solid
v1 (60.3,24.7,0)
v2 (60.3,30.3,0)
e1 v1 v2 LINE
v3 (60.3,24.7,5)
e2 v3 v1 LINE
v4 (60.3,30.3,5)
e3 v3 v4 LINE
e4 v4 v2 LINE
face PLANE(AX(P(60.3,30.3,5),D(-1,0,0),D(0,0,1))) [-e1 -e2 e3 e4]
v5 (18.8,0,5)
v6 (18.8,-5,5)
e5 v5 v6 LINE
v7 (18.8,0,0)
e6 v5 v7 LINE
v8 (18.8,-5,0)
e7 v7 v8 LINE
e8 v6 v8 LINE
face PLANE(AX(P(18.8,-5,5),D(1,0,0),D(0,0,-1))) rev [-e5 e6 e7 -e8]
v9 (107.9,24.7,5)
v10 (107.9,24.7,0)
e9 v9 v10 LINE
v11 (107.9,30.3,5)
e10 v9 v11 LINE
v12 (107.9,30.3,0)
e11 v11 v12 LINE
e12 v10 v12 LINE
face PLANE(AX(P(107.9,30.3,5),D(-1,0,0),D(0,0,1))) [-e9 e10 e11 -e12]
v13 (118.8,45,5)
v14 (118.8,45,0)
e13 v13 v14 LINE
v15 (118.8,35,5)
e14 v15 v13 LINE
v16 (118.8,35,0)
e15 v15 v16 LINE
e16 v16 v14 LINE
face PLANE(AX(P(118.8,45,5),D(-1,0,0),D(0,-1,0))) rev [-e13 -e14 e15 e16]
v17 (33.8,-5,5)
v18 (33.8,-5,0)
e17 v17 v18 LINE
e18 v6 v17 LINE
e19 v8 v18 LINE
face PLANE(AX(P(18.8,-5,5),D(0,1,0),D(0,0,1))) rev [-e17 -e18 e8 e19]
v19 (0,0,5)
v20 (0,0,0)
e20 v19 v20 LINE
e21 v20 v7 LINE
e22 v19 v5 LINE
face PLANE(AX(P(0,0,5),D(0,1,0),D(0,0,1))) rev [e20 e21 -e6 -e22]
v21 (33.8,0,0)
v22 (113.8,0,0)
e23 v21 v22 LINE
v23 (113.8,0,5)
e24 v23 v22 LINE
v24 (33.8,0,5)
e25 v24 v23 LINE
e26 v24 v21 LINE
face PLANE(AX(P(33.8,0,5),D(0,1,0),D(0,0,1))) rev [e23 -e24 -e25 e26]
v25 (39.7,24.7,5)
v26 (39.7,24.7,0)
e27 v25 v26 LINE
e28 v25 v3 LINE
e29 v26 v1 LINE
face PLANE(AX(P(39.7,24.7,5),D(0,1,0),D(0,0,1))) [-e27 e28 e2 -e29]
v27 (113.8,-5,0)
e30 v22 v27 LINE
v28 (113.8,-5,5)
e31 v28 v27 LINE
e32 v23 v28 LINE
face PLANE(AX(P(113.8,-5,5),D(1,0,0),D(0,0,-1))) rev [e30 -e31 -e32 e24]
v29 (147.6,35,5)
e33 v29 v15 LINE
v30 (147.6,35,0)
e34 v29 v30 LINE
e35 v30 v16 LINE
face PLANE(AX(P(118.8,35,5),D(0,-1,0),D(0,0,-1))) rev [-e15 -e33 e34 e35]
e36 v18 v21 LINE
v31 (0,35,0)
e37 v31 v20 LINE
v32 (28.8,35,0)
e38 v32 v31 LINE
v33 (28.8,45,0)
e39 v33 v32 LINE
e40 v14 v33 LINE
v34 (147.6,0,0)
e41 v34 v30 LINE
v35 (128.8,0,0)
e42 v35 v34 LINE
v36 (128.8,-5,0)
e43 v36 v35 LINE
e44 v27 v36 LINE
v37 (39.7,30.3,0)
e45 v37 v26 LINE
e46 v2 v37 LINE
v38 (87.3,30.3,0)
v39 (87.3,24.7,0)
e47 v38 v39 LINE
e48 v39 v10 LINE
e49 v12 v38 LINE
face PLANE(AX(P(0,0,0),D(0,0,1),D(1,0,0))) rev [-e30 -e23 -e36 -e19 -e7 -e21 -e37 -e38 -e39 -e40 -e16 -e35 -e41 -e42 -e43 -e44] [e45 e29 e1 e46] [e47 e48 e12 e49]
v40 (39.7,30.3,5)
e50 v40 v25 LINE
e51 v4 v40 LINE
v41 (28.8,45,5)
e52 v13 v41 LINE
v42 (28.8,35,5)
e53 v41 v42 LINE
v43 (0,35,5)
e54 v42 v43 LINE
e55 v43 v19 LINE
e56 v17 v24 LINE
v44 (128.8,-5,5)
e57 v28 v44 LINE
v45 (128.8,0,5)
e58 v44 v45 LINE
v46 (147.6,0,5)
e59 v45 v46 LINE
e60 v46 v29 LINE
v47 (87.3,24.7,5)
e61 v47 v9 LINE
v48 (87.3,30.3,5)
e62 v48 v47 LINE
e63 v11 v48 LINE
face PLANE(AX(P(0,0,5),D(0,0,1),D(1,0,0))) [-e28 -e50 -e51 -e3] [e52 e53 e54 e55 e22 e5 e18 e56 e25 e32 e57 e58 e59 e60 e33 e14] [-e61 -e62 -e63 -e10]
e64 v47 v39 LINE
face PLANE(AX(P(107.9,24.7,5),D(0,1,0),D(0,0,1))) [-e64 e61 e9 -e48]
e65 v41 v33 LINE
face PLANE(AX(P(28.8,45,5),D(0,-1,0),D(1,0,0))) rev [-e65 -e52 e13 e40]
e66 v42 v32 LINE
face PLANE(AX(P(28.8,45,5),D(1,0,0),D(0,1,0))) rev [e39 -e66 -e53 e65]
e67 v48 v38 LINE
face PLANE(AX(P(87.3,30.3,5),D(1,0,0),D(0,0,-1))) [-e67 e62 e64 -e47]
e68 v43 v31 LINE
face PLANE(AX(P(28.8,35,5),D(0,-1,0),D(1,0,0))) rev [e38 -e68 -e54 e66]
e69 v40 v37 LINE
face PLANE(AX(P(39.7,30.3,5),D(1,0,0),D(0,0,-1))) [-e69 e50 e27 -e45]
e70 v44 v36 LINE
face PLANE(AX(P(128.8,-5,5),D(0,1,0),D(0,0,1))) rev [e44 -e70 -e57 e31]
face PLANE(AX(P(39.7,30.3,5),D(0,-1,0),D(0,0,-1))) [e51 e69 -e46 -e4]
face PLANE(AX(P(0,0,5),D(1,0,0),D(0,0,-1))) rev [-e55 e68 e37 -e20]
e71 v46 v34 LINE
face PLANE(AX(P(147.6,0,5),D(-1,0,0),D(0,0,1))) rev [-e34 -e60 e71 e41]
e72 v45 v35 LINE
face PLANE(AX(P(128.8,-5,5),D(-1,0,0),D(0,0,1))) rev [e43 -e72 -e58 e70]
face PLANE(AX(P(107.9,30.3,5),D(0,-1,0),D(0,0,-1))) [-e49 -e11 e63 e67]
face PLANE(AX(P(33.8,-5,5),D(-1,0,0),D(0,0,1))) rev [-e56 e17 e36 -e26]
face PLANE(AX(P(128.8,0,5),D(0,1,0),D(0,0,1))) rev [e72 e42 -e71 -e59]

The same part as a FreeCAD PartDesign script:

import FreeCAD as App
import Part
import Sketcher
from FreeCAD import Vector


def add_polygon(sketch, points):
    """Adds a closed chain of lines whose ends are joined by coincident constraints."""
    first, n = sketch.GeometryCount, len(points)
    for a, b in zip(points, points[1:] + points[:1]):
        sketch.addGeometry(Part.LineSegment(App.Vector(*a, 0), App.Vector(*b, 0)), False)
    for i in range(n):
        sketch.addConstraint(Sketcher.Constraint("Coincident", first + i, 2, first + (i + 1) % n, 1))

doc = App.newDocument("Part")
body = doc.addObject("PartDesign::Body", "Body")

# Sketch on XY plane
sketch1 = doc.addObject("Sketcher::SketchObject", "Sketch")
body.addObject(sketch1)
sketch1.AttachmentSupport = (doc.XY_Plane, [""])
sketch1.MapMode = "FlatFace"
add_polygon(sketch1, [(28.8, 35), (0, 35), (0, 0), (18.8, 0), (18.8, -5), (33.8, -5), (33.8, 0), (113.8, 0), (113.8, -5), (128.8, -5), (128.8, 0), (147.6, 0), (147.6, 35), (118.8, 35), (118.8, 45), (28.8, 45)])  # lines 0-15
add_polygon(sketch1, [(60.3, 24.7), (39.7, 24.7), (39.7, 30.3), (60.3, 30.3)])  # lines 16-19
add_polygon(sketch1, [(107.9, 24.7), (87.3, 24.7), (87.3, 30.3), (107.9, 30.3)])  # lines 20-23
sketch1.addConstraint([
    Sketcher.Constraint("Horizontal", 0),
    Sketcher.Constraint("Vertical", 1),
    Sketcher.Constraint("Horizontal", 2),
    Sketcher.Constraint("Vertical", 3),
    Sketcher.Constraint("Horizontal", 4),
    Sketcher.Constraint("Vertical", 5),
    Sketcher.Constraint("Horizontal", 6),
    Sketcher.Constraint("Vertical", 7),
    Sketcher.Constraint("Horizontal", 8),
    Sketcher.Constraint("Vertical", 9),
    Sketcher.Constraint("Horizontal", 10),
    Sketcher.Constraint("Vertical", 11),
    Sketcher.Constraint("Horizontal", 12),
    Sketcher.Constraint("Vertical", 13),
    Sketcher.Constraint("Horizontal", 14),
    Sketcher.Constraint("Vertical", 15),
    Sketcher.Constraint("Horizontal", 16),
    Sketcher.Constraint("Vertical", 17),
    Sketcher.Constraint("Horizontal", 18),
    Sketcher.Constraint("Vertical", 19),
    Sketcher.Constraint("Horizontal", 20),
    Sketcher.Constraint("Vertical", 21),
    Sketcher.Constraint("Horizontal", 22),
    Sketcher.Constraint("Vertical", 23),
    Sketcher.Constraint("Coincident", 1, 2, -1, 1),
    Sketcher.Constraint("PointOnObject", 5, 2, -1),
    Sketcher.Constraint("PointOnObject", 9, 2, -1),
    Sketcher.Constraint("Horizontal", 4, 2, 7, 2),
    Sketcher.Constraint("Horizontal", 0, 2, 11, 2),
    Sketcher.Constraint("Horizontal", 19, 2, 20, 2),
    Sketcher.Constraint("Horizontal", 18, 2, 21, 2),
    Sketcher.Constraint("Equal", 4, 8),
    Sketcher.Constraint("Equal", 2, 10),
    Sketcher.Constraint("Equal", 0, 12),
    Sketcher.Constraint("Equal", 18, 20),
    Sketcher.Constraint("DistanceX", 4, 1, 4, 2, 15.0),
    Sketcher.Constraint("DistanceX", 6, 1, 6, 2, 80.0),
    Sketcher.Constraint("DistanceX", 14, 2, 14, 1, 90.0),
    Sketcher.Constraint("DistanceY", 1, 2, 1, 1, 35.0),
    Sketcher.Constraint("DistanceY", 3, 2, 3, 1, 5.0),
    Sketcher.Constraint("DistanceY", 13, 1, 13, 2, 10.0),
    Sketcher.Constraint("DistanceX", 0, 2, 0, 1, 28.8),
    Sketcher.Constraint("DistanceX", 16, 2, 16, 1, 20.6),
    Sketcher.Constraint("DistanceY", 17, 1, 17, 2, 5.6),
    Sketcher.Constraint("DistanceX", 19, 2, 20, 2, 27.0),
    Sketcher.Constraint("DistanceX", -1, 1, 16, 2, 39.7),
    Sketcher.Constraint("DistanceY", -1, 1, 16, 2, 24.7),
])
pad1 = doc.addObject("PartDesign::Pad", "Pad")
body.addObject(pad1)
pad1.Profile = sketch1
pad1.Length = 5

doc.recompute()
